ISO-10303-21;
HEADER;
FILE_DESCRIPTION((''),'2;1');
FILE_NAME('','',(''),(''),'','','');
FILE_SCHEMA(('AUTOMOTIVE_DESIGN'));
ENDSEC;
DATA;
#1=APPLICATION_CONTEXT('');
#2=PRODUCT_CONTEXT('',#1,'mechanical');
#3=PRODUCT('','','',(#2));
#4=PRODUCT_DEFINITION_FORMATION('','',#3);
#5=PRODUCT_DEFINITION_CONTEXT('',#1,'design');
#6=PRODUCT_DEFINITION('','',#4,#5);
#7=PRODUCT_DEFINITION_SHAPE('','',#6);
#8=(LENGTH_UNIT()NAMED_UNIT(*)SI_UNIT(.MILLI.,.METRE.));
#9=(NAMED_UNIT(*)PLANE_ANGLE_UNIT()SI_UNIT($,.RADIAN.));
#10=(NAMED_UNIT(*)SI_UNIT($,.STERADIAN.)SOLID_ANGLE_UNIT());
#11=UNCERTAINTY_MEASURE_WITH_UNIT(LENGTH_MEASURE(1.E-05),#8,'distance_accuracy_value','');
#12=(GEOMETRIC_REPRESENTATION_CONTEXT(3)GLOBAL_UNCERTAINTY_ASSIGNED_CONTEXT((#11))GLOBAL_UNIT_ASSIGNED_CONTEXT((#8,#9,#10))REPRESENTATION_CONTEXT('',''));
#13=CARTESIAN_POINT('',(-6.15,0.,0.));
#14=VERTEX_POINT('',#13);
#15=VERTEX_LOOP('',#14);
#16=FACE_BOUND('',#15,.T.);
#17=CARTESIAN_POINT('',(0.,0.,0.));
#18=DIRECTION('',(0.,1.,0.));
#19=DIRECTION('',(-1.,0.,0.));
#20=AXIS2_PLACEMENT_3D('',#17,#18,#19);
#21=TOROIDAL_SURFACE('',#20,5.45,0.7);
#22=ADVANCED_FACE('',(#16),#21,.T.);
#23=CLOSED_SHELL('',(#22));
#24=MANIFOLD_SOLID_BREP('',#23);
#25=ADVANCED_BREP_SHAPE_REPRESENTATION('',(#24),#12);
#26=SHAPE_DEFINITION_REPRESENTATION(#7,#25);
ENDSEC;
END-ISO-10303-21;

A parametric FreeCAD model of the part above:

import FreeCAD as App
import Part
import Sketcher
from FreeCAD import Vector

doc = App.newDocument("Part")
params = doc.addObject("Spreadsheet::Sheet", "Params")
for row, (alias, value) in enumerate([
    ("sketch1_diameter", "1.4 mm"),
    ("revolution_angle", "360 deg"),
], start=1):
    params.set(f"A{row}", alias)
    params.set(f"B{row}", "=" + value)
    params.setAlias(f"B{row}", alias)

body = doc.addObject("PartDesign::Body", "Body")

sketch1 = doc.addObject("Sketcher::SketchObject", "Sketch")
body.addObject(sketch1)
sketch1.AttachmentSupport = (doc.XY_Plane, [""])
sketch1.MapMode = "FlatFace"
sketch1.addGeometry(Part.Circle(Vector(5.5, 0, 0), Vector(0, 0, 1), 0.7), False)
sketch1.addConstraint([
    Sketcher.Constraint("PointOnObject", 0, 3, -1),
    Sketcher.Constraint("Diameter", 0, 1.4),
    Sketcher.Constraint("DistanceX", -1, 1, 0, 3, 5.45),
])
sketch1.setExpression("Constraints[1]", "Params.sketch1_diameter")
revolution = doc.addObject("PartDesign::Revolution", "Revolution")
body.addObject(revolution)
revolution.Profile = sketch1
revolution.ReferenceAxis = (sketch1, ["V_Axis"])
revolution.setExpression("Angle", "Params.revolution_angle")

doc.recompute()
